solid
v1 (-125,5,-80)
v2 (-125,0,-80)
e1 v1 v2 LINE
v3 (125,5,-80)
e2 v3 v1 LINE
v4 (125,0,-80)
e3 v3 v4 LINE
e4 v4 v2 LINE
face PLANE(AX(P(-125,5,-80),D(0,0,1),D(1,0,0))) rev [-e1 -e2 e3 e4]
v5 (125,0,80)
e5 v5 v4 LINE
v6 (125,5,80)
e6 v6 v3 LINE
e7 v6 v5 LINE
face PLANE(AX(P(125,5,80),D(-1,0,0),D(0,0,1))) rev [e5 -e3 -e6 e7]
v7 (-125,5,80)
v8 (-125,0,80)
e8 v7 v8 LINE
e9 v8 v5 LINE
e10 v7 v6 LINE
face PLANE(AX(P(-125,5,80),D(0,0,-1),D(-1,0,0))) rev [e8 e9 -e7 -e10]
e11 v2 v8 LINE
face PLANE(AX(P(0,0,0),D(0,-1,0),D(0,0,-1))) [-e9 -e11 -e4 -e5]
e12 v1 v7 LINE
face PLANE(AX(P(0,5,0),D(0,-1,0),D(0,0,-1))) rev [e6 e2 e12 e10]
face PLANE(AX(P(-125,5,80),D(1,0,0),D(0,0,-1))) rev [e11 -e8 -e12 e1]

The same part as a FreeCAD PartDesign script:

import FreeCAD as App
import Part
import Sketcher
from FreeCAD import Vector


def add_polygon(sketch, points):
    """Adds a closed chain of lines whose ends are joined by coincident constraints."""
    first, n = sketch.GeometryCount, len(points)
    for a, b in zip(points, points[1:] + points[:1]):
        sketch.addGeometry(Part.LineSegment(App.Vector(*a, 0), App.Vector(*b, 0)), False)
    for i in range(n):
        sketch.addConstraint(Sketcher.Constraint("Coincident", first + i, 2, first + (i + 1) % n, 1))

doc = App.newDocument("Part")
body = doc.addObject("PartDesign::Body", "Body")

sketch1 = doc.addObject("Sketcher::SketchObject", "Sketch")
body.addObject(sketch1)
sketch1.AttachmentSupport = (doc.XZ_Plane, [""])
sketch1.MapMode = "FlatFace"
add_polygon(sketch1, [(-125, -80), (-125, 80), (125, 80), (125, -80)])
sketch1.addConstraint([
    Sketcher.Constraint("Vertical", 0),
    Sketcher.Constraint("Horizontal", 1),
    Sketcher.Constraint("Vertical", 2),
    Sketcher.Constraint("Horizontal", 3),
    Sketcher.Constraint("Symmetric", 0, 2, 2, 2, -1, 1),
    Sketcher.Constraint("DistanceX", 1, 1, 1, 2, 250.0),
    Sketcher.Constraint("DistanceY", 0, 1, 0, 2, 160.0),
])
pad1 = doc.addObject("PartDesign::Pad", "Pad")
body.addObject(pad1)
pad1.Profile = sketch1
pad1.Length = 5
pad1.Reversed = True

doc.recompute()
